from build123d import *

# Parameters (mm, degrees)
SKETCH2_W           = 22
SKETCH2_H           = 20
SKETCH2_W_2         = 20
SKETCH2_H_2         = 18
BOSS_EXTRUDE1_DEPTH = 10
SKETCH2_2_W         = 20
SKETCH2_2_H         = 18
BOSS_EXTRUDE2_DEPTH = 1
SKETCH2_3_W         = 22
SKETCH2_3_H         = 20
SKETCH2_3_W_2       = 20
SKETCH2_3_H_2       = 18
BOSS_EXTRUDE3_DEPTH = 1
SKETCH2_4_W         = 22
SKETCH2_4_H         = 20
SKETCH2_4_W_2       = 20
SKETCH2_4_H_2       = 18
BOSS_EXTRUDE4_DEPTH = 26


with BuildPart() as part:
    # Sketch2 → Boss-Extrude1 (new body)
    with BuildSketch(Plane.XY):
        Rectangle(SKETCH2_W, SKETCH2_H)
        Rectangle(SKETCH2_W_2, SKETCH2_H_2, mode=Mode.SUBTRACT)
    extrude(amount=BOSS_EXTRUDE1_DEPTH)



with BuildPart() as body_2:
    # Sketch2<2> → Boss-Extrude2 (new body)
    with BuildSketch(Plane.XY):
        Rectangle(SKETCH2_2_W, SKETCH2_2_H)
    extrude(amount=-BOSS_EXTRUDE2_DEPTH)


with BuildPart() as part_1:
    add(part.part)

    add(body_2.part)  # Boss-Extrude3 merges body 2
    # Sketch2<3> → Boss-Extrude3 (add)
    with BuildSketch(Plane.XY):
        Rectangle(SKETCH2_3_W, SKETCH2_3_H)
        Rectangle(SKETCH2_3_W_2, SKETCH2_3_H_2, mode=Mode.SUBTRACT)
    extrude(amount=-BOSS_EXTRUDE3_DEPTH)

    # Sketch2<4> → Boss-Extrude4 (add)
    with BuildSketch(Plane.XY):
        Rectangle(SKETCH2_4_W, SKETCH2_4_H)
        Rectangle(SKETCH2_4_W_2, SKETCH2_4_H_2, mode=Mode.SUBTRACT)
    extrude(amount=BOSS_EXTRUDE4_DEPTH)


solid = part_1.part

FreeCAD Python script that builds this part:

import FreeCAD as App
import Part
import Sketcher
from FreeCAD import Vector

doc = App.newDocument("Part")
params = doc.addObject("Spreadsheet::Sheet", "Params")
for row, (alias, value) in enumerate([
    ("sketch1_width", "22 mm"),
    ("sketch1_width2", "20 mm"),
    ("sketch1_height", "18 mm"),
    ("pad1_length", "10 mm"),
    ("sketch2_width", "20 mm"),
    ("sketch2_height", "18 mm"),
    ("pad2_length", "1 mm"),
    ("sketch3_width", "22 mm"),
    ("sketch3_width2", "20 mm"),
    ("sketch3_height", "18 mm"),
    ("pad3_length", "1 mm"),
    ("sketch4_width", "22 mm"),
    ("sketch4_width2", "20 mm"),
    ("sketch4_height", "18 mm"),
    ("pad4_length", "26 mm"),
], start=1):
    params.set(f"A{row}", alias)
    params.set(f"B{row}", "=" + value)
    params.setAlias(f"B{row}", alias)

body = doc.addObject("PartDesign::Body", "Body")

sketch1 = body.newObject("Sketcher::SketchObject", "Sketch")
sketch1.AttachmentSupport = (doc.getObject("XY_Plane"), [""])
sketch1.MapMode = "FlatFace"
sketch1.addGeometry([
    Part.LineSegment(Vector(-11, 10, 0), Vector(-11, -10, 0)),
    Part.LineSegment(Vector(-11, -10, 0), Vector(11, -10, 0)),
    Part.LineSegment(Vector(11, -10, 0), Vector(11, 10, 0)),
    Part.LineSegment(Vector(11, 10, 0), Vector(-11, 10, 0)),
    Part.LineSegment(Vector(10, -9, 0), Vector(-10, -9, 0)),
    Part.LineSegment(Vector(-10, -9, 0), Vector(-10, 9, 0)),
    Part.LineSegment(Vector(-10, 9, 0), Vector(10, 9, 0)),
    Part.LineSegment(Vector(10, 9, 0), Vector(10, -9, 0)),
], False)
sketch1.addConstraint([
    Sketcher.Constraint("Coincident", 0, 2, 1, 1),
    Sketcher.Constraint("Coincident", 1, 2, 2, 1),
    Sketcher.Constraint("Coincident", 2, 2, 3, 1),
    Sketcher.Constraint("Coincident", 3, 2, 0, 1),
    Sketcher.Constraint("Coincident", 4, 2, 5, 1),
    Sketcher.Constraint("Coincident", 5, 2, 6, 1),
    Sketcher.Constraint("Coincident", 6, 2, 7, 1),
    Sketcher.Constraint("Coincident", 7, 2, 4, 1),
    Sketcher.Constraint("Vertical", 0),
    Sketcher.Constraint("Horizontal", 1),
    Sketcher.Constraint("Vertical", 2),
    Sketcher.Constraint("Horizontal", 3),
    Sketcher.Constraint("Horizontal", 4),
    Sketcher.Constraint("Vertical", 5),
    Sketcher.Constraint("Horizontal", 6),
    Sketcher.Constraint("Vertical", 7),
    Sketcher.Constraint("Symmetric", 0, 2, 2, 2, -1, 1),
    Sketcher.Constraint("Symmetric", 4, 2, 6, 2, -1, 1),
    Sketcher.Constraint("Equal", 6, 0),
    Sketcher.Constraint("DistanceX", 1, 1, 1, 2, 22.0),
    Sketcher.Constraint("DistanceX", 4, 2, 4, 1, 20.0),
    Sketcher.Constraint("DistanceY", 5, 1, 5, 2, 18.0),
])
sketch1.setExpression("Constraints[19]", "Params.sketch1_width")
sketch1.setExpression("Constraints[20]", "Params.sketch1_width2")
sketch1.setExpression("Constraints[21]", "Params.sketch1_height")
pad1 = body.newObject("PartDesign::Pad", "Pad")
pad1.Profile = sketch1
pad1.setExpression("Length", "Params.pad1_length")
body2 = doc.addObject("PartDesign::Body", "Body001")

sketch2 = body2.newObject("Sketcher::SketchObject", "Sketch001")
sketch2.AttachmentSupport = (doc.getObject("XY_Plane001"), [""])
sketch2.MapMode = "FlatFace"
sketch2.addGeometry([
    Part.LineSegment(Vector(-10, 9, 0), Vector(-10, -9, 0)),
    Part.LineSegment(Vector(-10, -9, 0), Vector(10, -9, 0)),
    Part.LineSegment(Vector(10, -9, 0), Vector(10, 9, 0)),
    Part.LineSegment(Vector(10, 9, 0), Vector(-10, 9, 0)),
], False)
sketch2.addConstraint([
    Sketcher.Constraint("Coincident", 0, 2, 1, 1),
    Sketcher.Constraint("Coincident", 1, 2, 2, 1),
    Sketcher.Constraint("Coincident", 2, 2, 3, 1),
    Sketcher.Constraint("Coincident", 3, 2, 0, 1),
    Sketcher.Constraint("Vertical", 0),
    Sketcher.Constraint("Horizontal", 1),
    Sketcher.Constraint("Vertical", 2),
    Sketcher.Constraint("Horizontal", 3),
    Sketcher.Constraint("Symmetric", 0, 2, 2, 2, -1, 1),
    Sketcher.Constraint("DistanceX", 1, 1, 1, 2, 20.0),
    Sketcher.Constraint("DistanceY", 0, 2, 0, 1, 18.0),
])
sketch2.setExpression("Constraints[9]", "Params.sketch2_width")
sketch2.setExpression("Constraints[10]", "Params.sketch2_height")
pad2 = body2.newObject("PartDesign::Pad", "Pad001")
pad2.Profile = sketch2
pad2.setExpression("Length", "Params.pad2_length")
pad2.Reversed = True
body.AllowCompound = True
doc.recompute()

boolean = body.newObject("PartDesign::Boolean", "Boolean")
boolean.Type = "Fuse"
boolean.addObjects([body2])

sketch3 = body.newObject("Sketcher::SketchObject", "Sketch002")
sketch3.AttachmentSupport = (doc.getObject("XY_Plane"), [""])
sketch3.MapMode = "FlatFace"
sketch3.addGeometry([
    Part.LineSegment(Vector(-11, 10, 0), Vector(-11, -10, 0)),
    Part.LineSegment(Vector(-11, -10, 0), Vector(11, -10, 0)),
    Part.LineSegment(Vector(11, -10, 0), Vector(11, 10, 0)),
    Part.LineSegment(Vector(11, 10, 0), Vector(-11, 10, 0)),
    Part.LineSegment(Vector(10, -9, 0), Vector(-10, -9, 0)),
    Part.LineSegment(Vector(-10, -9, 0), Vector(-10, 9, 0)),
    Part.LineSegment(Vector(-10, 9, 0), Vector(10, 9, 0)),
    Part.LineSegment(Vector(10, 9, 0), Vector(10, -9, 0)),
], False)
sketch3.addConstraint([
    Sketcher.Constraint("Coincident", 0, 2, 1, 1),
    Sketcher.Constraint("Coincident", 1, 2, 2, 1),
    Sketcher.Constraint("Coincident", 2, 2, 3, 1),
    Sketcher.Constraint("Coincident", 3, 2, 0, 1),
    Sketcher.Constraint("Coincident", 4, 2, 5, 1),
    Sketcher.Constraint("Coincident", 5, 2, 6, 1),
    Sketcher.Constraint("Coincident", 6, 2, 7, 1),
    Sketcher.Constraint("Coincident", 7, 2, 4, 1),
    Sketcher.Constraint("Vertical", 0),
    Sketcher.Constraint("Horizontal", 1),
    Sketcher.Constraint("Vertical", 2),
    Sketcher.Constraint("Horizontal", 3),
    Sketcher.Constraint("Horizontal", 4),
    Sketcher.Constraint("Vertical", 5),
    Sketcher.Constraint("Horizontal", 6),
    Sketcher.Constraint("Vertical", 7),
    Sketcher.Constraint("Symmetric", 0, 2, 2, 2, -1, 1),
    Sketcher.Constraint("Symmetric", 4, 2, 6, 2, -1, 1),
    Sketcher.Constraint("Equal", 6, 0),
    Sketcher.Constraint("DistanceX", 1, 1, 1, 2, 22.0),
    Sketcher.Constraint("DistanceX", 4, 2, 4, 1, 20.0),
    Sketcher.Constraint("DistanceY", 5, 1, 5, 2, 18.0),
])
sketch3.setExpression("Constraints[19]", "Params.sketch3_width")
sketch3.setExpression("Constraints[20]", "Params.sketch3_width2")
sketch3.setExpression("Constraints[21]", "Params.sketch3_height")
pad3 = body.newObject("PartDesign::Pad", "Pad002")
pad3.Profile = sketch3
pad3.setExpression("Length", "Params.pad3_length")
pad3.Reversed = True

sketch4 = body.newObject("Sketcher::SketchObject", "Sketch003")
sketch4.AttachmentSupport = (doc.getObject("XY_Plane"), [""])
sketch4.MapMode = "FlatFace"
sketch4.addGeometry([
    Part.LineSegment(Vector(-11, 10, 0), Vector(-11, -10, 0)),
    Part.LineSegment(Vector(-11, -10, 0), Vector(11, -10, 0)),
    Part.LineSegment(Vector(11, -10, 0), Vector(11, 10, 0)),
    Part.LineSegment(Vector(11, 10, 0), Vector(-11, 10, 0)),
    Part.LineSegment(Vector(10, -9, 0), Vector(-10, -9, 0)),
    Part.LineSegment(Vector(-10, -9, 0), Vector(-10, 9, 0)),
    Part.LineSegment(Vector(-10, 9, 0), Vector(10, 9, 0)),
    Part.LineSegment(Vector(10, 9, 0), Vector(10, -9, 0)),
], False)
sketch4.addConstraint([
    Sketcher.Constraint("Coincident", 0, 2, 1, 1),
    Sketcher.Constraint("Coincident", 1, 2, 2, 1),
    Sketcher.Constraint("Coincident", 2, 2, 3, 1),
    Sketcher.Constraint("Coincident", 3, 2, 0, 1),
    Sketcher.Constraint("Coincident", 4, 2, 5, 1),
    Sketcher.Constraint("Coincident", 5, 2, 6, 1),
    Sketcher.Constraint("Coincident", 6, 2, 7, 1),
    Sketcher.Constraint("Coincident", 7, 2, 4, 1),
    Sketcher.Constraint("Vertical", 0),
    Sketcher.Constraint("Horizontal", 1),
    Sketcher.Constraint("Vertical", 2),
    Sketcher.Constraint("Horizontal", 3),
    Sketcher.Constraint("Horizontal", 4),
    Sketcher.Constraint("Vertical", 5),
    Sketcher.Constraint("Horizontal", 6),
    Sketcher.Constraint("Vertical", 7),
    Sketcher.Constraint("Symmetric", 0, 2, 2, 2, -1, 1),
    Sketcher.Constraint("Symmetric", 4, 2, 6, 2, -1, 1),
    Sketcher.Constraint("Equal", 6, 0),
    Sketcher.Constraint("DistanceX", 1, 1, 1, 2, 22.0),
    Sketcher.Constraint("DistanceX", 4, 2, 4, 1, 20.0),
    Sketcher.Constraint("DistanceY", 5, 1, 5, 2, 18.0),
])
sketch4.setExpression("Constraints[19]", "Params.sketch4_width")
sketch4.setExpression("Constraints[20]", "Params.sketch4_width2")
sketch4.setExpression("Constraints[21]", "Params.sketch4_height")
pad4 = body.newObject("PartDesign::Pad", "Pad003")
pad4.Profile = sketch4
pad4.setExpression("Length", "Params.pad4_length")

doc.recompute()
